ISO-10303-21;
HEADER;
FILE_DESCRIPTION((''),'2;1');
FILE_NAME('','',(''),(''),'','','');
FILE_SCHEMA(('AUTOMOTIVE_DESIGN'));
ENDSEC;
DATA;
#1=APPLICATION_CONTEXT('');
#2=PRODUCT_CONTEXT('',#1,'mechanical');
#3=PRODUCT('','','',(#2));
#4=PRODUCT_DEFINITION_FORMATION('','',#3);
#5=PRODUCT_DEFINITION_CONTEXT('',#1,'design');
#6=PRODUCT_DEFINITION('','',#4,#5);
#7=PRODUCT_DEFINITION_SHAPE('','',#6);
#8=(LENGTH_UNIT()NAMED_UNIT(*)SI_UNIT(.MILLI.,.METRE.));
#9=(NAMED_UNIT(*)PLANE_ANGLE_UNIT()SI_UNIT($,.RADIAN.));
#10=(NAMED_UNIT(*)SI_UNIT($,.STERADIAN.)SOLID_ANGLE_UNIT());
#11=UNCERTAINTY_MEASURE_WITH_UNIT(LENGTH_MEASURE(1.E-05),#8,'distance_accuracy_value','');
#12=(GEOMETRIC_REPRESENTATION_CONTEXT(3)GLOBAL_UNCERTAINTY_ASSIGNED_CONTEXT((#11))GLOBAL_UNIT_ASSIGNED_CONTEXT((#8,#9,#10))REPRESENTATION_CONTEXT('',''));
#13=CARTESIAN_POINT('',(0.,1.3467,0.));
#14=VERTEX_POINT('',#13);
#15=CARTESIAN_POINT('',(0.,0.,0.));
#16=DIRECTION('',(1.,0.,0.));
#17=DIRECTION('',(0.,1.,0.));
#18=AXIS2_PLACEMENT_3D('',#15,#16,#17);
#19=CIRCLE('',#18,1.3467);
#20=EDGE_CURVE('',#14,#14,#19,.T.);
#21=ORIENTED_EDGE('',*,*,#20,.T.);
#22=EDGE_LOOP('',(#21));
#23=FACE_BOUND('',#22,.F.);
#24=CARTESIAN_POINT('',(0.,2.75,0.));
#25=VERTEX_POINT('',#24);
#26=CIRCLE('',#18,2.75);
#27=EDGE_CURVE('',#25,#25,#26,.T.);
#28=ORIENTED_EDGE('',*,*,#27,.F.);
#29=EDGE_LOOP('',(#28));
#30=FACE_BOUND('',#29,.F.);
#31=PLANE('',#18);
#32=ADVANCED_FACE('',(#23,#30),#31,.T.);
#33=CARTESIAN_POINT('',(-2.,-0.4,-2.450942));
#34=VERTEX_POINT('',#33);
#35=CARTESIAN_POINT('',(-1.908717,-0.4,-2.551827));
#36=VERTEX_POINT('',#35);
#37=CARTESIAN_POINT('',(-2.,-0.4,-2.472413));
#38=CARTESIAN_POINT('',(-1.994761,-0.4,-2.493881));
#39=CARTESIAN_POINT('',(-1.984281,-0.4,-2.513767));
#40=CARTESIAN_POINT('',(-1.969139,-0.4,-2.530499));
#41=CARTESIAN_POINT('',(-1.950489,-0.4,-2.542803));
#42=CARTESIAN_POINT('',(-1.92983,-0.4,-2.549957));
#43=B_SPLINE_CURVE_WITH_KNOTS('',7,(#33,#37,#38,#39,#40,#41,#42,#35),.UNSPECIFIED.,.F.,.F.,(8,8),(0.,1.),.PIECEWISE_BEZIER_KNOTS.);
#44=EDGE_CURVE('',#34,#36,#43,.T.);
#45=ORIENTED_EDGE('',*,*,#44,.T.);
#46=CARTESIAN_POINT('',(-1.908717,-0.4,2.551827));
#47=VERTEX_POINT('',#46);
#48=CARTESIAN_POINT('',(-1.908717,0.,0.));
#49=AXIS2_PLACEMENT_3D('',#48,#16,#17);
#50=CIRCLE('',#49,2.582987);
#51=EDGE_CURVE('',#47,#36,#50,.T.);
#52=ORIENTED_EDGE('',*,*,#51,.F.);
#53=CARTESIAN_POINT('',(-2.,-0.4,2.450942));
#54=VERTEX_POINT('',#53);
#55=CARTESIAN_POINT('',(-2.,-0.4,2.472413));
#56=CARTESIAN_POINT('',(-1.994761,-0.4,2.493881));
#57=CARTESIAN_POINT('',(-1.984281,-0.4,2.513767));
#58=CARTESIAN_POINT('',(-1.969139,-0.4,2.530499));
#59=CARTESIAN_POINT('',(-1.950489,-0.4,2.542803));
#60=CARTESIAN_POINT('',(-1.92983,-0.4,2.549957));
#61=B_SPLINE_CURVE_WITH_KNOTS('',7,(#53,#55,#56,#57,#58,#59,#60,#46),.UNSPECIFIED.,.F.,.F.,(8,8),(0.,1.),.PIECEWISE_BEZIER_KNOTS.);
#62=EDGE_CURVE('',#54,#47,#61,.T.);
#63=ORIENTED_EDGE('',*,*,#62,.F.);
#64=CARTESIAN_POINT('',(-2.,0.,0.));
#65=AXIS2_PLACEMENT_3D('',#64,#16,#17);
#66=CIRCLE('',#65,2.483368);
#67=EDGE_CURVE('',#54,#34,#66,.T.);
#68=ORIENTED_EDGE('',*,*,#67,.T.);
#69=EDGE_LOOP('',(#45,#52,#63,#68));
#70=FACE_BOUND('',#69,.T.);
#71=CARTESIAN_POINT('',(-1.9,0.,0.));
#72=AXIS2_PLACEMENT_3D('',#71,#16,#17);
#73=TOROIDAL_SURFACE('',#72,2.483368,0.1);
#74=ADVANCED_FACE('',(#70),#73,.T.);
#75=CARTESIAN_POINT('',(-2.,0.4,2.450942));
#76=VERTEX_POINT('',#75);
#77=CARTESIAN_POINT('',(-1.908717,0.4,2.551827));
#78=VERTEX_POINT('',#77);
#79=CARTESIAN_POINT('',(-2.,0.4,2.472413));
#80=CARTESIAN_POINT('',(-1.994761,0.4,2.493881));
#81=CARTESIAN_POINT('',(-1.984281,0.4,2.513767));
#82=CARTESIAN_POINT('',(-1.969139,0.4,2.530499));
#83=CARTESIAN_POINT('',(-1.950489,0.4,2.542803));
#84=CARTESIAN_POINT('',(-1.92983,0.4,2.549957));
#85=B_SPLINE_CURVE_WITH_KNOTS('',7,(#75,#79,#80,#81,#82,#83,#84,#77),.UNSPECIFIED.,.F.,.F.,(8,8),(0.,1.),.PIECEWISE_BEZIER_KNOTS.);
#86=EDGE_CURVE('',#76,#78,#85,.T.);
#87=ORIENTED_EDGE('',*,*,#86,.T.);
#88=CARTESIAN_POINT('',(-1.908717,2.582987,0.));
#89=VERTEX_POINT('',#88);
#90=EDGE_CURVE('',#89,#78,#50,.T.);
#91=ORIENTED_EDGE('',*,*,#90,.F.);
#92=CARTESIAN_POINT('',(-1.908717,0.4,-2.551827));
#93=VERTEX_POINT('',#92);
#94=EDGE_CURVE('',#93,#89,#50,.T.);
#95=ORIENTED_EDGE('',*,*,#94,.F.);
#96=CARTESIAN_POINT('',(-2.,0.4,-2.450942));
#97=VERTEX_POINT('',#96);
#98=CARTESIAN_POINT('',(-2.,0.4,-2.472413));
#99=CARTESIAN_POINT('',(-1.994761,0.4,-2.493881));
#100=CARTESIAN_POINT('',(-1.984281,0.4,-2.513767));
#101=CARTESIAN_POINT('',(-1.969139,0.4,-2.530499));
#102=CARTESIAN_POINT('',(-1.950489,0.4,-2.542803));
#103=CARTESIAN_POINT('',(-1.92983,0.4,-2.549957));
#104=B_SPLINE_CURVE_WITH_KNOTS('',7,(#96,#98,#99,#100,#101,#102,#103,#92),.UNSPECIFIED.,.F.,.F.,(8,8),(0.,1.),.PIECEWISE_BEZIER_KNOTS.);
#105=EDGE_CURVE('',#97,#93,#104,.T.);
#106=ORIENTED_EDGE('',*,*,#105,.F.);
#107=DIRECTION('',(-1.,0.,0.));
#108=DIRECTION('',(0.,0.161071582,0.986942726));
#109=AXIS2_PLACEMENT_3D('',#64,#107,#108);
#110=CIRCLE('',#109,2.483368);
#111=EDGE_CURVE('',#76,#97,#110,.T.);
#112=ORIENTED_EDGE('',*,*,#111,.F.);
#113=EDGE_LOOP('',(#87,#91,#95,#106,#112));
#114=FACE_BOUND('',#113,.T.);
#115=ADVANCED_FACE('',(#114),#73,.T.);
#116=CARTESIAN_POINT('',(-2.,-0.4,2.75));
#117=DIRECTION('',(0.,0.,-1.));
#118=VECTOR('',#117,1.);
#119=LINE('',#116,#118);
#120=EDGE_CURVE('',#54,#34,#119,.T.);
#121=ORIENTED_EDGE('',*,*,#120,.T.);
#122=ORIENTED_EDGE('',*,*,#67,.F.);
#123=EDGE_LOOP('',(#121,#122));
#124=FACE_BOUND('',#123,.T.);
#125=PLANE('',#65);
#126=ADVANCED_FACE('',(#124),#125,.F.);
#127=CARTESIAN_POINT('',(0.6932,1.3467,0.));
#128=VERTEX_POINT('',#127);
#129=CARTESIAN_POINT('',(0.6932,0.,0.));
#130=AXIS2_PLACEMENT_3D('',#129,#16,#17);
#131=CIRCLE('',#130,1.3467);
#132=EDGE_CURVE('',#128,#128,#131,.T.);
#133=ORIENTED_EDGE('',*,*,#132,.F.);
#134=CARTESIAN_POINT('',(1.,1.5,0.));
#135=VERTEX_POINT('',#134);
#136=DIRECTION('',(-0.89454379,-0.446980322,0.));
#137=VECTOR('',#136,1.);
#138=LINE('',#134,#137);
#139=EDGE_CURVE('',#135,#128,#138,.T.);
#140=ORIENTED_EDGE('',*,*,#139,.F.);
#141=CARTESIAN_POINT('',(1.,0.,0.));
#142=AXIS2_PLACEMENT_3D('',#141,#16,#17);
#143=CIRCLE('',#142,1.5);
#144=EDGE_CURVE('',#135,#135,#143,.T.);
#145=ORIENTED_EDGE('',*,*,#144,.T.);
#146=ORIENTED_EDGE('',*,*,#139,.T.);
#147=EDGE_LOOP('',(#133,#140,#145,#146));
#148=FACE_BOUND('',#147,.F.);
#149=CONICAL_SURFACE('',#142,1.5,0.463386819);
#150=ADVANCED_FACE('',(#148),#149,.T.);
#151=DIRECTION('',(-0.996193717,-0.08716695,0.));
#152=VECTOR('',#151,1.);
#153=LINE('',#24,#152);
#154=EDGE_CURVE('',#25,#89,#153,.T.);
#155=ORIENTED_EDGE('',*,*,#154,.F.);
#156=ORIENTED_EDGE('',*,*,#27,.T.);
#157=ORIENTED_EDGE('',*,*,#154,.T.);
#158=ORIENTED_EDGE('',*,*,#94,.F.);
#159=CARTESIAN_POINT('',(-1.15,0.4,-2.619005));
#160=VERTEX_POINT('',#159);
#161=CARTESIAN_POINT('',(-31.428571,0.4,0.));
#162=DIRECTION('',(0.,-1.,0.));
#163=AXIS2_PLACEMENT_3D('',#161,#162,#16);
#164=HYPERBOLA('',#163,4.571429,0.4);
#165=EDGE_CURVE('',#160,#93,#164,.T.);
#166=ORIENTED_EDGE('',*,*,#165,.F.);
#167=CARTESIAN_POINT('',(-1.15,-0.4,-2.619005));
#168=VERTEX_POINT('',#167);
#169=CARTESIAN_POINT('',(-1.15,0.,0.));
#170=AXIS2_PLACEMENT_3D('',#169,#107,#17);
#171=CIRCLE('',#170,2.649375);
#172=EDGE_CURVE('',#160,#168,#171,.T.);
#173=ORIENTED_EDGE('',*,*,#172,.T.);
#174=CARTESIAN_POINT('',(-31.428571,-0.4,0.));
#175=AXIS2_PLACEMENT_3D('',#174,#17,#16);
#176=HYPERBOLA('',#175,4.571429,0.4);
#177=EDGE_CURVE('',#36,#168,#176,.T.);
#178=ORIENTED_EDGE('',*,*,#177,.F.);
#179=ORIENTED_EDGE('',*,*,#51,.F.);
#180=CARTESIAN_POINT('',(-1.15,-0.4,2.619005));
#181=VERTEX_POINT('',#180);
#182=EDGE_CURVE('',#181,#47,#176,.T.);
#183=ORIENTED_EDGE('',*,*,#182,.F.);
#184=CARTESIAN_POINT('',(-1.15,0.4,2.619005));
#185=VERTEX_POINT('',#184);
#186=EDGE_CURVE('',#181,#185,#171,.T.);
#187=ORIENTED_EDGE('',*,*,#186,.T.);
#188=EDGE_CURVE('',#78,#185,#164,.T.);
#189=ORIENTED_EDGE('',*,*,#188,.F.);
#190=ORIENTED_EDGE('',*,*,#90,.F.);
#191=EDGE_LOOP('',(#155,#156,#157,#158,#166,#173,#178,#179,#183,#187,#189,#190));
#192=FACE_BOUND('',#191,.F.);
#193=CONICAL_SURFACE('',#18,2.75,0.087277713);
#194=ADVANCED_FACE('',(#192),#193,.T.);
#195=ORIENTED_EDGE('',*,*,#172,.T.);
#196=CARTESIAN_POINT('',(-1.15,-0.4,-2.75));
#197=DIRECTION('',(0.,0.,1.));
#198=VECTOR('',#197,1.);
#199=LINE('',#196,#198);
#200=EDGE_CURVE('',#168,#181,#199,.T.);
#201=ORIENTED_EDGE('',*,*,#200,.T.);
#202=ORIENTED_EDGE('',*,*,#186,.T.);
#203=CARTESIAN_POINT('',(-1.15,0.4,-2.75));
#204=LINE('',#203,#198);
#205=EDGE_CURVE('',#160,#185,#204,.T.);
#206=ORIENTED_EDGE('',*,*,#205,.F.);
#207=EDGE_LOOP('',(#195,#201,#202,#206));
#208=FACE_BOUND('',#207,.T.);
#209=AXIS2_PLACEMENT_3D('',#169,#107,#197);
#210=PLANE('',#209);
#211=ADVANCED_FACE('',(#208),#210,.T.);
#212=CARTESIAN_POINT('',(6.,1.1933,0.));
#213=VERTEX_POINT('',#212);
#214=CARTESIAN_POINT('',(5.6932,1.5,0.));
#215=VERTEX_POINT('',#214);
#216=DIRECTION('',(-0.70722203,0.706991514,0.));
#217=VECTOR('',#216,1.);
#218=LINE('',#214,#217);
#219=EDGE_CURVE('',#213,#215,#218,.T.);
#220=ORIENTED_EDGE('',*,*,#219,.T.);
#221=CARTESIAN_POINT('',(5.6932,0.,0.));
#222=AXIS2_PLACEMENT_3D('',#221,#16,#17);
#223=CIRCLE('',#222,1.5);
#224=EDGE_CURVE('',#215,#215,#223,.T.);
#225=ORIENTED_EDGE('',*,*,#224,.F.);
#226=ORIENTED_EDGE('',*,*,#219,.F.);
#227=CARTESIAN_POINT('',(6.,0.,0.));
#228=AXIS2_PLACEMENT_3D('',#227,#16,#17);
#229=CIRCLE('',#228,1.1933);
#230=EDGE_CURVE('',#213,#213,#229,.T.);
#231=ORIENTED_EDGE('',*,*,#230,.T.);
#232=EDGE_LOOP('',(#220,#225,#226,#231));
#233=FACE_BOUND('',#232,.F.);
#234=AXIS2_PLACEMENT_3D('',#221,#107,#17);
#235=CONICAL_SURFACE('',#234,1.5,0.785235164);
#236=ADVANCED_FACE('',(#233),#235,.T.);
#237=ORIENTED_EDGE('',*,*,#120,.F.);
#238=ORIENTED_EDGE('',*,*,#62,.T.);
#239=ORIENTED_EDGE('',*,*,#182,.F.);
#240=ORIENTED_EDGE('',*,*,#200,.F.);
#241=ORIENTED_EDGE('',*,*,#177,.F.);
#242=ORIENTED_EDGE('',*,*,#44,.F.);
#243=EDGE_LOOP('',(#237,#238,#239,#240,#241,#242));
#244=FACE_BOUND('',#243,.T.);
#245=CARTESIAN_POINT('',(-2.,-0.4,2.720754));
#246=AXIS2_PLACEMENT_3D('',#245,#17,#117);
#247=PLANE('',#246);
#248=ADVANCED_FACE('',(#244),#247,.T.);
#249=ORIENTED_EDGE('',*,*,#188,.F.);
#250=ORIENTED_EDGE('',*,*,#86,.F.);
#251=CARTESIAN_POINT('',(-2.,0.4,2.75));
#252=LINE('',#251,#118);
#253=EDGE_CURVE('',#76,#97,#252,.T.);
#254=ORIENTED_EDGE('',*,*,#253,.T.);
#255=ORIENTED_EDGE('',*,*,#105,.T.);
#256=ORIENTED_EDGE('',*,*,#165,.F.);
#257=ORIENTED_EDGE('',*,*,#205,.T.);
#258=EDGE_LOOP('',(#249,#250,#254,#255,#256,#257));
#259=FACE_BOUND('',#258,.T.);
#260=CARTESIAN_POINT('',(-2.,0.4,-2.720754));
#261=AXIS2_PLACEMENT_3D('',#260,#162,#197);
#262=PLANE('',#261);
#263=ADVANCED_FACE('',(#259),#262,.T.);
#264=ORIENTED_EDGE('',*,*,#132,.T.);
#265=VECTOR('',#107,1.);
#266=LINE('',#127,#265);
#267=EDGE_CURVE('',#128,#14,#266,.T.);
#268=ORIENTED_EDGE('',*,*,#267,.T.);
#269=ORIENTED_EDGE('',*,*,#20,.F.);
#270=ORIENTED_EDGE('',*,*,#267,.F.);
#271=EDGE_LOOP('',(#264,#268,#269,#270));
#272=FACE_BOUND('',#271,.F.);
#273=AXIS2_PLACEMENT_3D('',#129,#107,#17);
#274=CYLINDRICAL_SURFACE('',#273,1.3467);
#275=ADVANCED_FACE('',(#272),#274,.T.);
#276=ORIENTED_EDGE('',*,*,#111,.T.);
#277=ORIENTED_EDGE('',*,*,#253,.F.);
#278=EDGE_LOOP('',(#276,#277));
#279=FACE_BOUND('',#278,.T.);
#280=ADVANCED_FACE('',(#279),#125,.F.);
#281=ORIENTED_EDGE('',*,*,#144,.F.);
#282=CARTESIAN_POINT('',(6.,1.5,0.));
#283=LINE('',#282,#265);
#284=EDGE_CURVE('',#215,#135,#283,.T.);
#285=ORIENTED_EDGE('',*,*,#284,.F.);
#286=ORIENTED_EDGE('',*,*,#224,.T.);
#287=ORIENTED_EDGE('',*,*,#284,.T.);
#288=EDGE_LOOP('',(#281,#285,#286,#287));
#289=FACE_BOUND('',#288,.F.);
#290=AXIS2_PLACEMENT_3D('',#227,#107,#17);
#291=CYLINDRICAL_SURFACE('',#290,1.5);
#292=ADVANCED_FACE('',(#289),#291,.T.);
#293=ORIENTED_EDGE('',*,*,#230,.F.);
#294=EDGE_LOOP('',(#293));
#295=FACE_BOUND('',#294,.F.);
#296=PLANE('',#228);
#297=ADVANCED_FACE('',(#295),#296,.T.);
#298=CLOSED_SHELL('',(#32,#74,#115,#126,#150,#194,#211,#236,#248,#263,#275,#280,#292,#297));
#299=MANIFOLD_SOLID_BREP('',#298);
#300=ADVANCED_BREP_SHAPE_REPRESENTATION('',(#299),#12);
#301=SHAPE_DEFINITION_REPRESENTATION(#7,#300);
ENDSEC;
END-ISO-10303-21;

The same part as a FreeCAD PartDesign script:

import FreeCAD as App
import Part
import Sketcher
from FreeCAD import Vector
Q = App.Units.Quantity


def edges_at(feature, points):
    """Names of the edges that pass closest to the given points."""
    edges = feature.Shape.Edges
    near = lambda p: min(range(len(edges)), key=lambda i: edges[i].distToShape(Part.Vertex(*p))[0])
    return sorted({f"Edge{near(p) + 1}" for p in points})

doc = App.newDocument("Part")
body = doc.addObject("PartDesign::Body", "Body")

# Sketch on XY plane
sketch1 = doc.addObject("Sketcher::SketchObject", "Sketch")
body.addObject(sketch1)
sketch1.AttachmentSupport = (doc.XY_Plane, [""])
sketch1.MapMode = "FlatFace"
sketch1.addGeometry([
    Part.LineSegment(Vector(-2, 2.58, 0), Vector(-2, 0, 0)),  # 0
    Part.LineSegment(Vector(-2, 0, 0), Vector(6, 0, 0)),  # 1
    Part.LineSegment(Vector(6, 0, 0), Vector(6, 1.5, 0)),  # 2
    Part.LineSegment(Vector(6, 1.5, 0), Vector(1, 1.5, 0)),  # 3
    Part.LineSegment(Vector(1, 1.5, 0), Vector(0.69, 1.35, 0)),  # 4
    Part.LineSegment(Vector(0.69, 1.35, 0), Vector(0, 1.35, 0)),  # 5
    Part.LineSegment(Vector(0, 1.35, 0), Vector(0, 2.75, 0)),  # 6
    Part.LineSegment(Vector(0, 2.75, 0), Vector(-2, 2.58, 0)),  # 7
], False)
sketch1.addConstraint([
    Sketcher.Constraint("Coincident", 0, 2, 1, 1),
    Sketcher.Constraint("Coincident", 1, 2, 2, 1),
    Sketcher.Constraint("Coincident", 2, 2, 3, 1),
    Sketcher.Constraint("Coincident", 3, 2, 4, 1),
    Sketcher.Constraint("Coincident", 4, 2, 5, 1),
    Sketcher.Constraint("Coincident", 5, 2, 6, 1),
    Sketcher.Constraint("Coincident", 6, 2, 7, 1),
    Sketcher.Constraint("Coincident", 7, 2, 0, 1),
    Sketcher.Constraint("Vertical", 0),
    Sketcher.Constraint("Horizontal", 1),
    Sketcher.Constraint("Vertical", 2),
    Sketcher.Constraint("Horizontal", 3),
    Sketcher.Constraint("Horizontal", 5),
    Sketcher.Constraint("Vertical", 6),
    Sketcher.Constraint("PointOnObject", 0, 2, -1),
    Sketcher.Constraint("PointOnObject", 5, 2, -2),
    Sketcher.Constraint("DistanceX", 3, 2, 3, 1, Q("5 mm")),
    Sketcher.Constraint("DistanceX", 0, 2, -1, 1, Q("2 mm")),
    Sketcher.Constraint("DistanceX", -1, 1, 1, 2, Q("6 mm")),
    Sketcher.Constraint("Angle", 7, Q("-174.9994 deg")),
    Sketcher.Constraint("DistanceY", 2, 1, 2, 2, Q("1.5 mm")),
    Sketcher.Constraint("Angle", 4, Q("-153.45 deg")),
    Sketcher.Constraint("DistanceX", 4, 2, 3, 2, Q("0.3068 mm")),
    Sketcher.Constraint("DistanceY", 0, 2, 0, 1, Q("2.575 mm")),
])
revolution = doc.addObject("PartDesign::Revolution", "Revolution")
body.addObject(revolution)
revolution.Profile = sketch1
revolution.ReferenceAxis = (sketch1, ["H_Axis"])
revolution.Angle = 360
doc.recompute()

fillet = doc.addObject("PartDesign::Fillet", "Fillet")
body.addObject(fillet)
fillet.Base = (revolution, edges_at(revolution, [(-2, -2.575, 0)]))
fillet.Radius = 0.1

# Sketch on YZ plane
sketch2 = doc.addObject("Sketcher::SketchObject", "Sketch001")
body.addObject(sketch2)
sketch2.AttachmentSupport = (doc.YZ_Plane, [""])
sketch2.MapMode = "FlatFace"
sketch2.AttachmentOffset = App.Placement(Vector(0, 0, -2), App.Rotation())
sketch2.addGeometry([
    Part.LineSegment(Vector(-0.4, 2.8, 0), Vector(0.4, 2.8, 0)),
    Part.LineSegment(Vector(0.4, 2.8, 0), Vector(0.4, -2.8, 0)),
    Part.LineSegment(Vector(0.4, -2.8, 0), Vector(-0.4, -2.8, 0)),
    Part.LineSegment(Vector(-0.4, -2.8, 0), Vector(-0.4, 2.8, 0)),
], False)
sketch2.addConstraint([
    Sketcher.Constraint("Coincident", 0, 2, 1, 1),
    Sketcher.Constraint("Coincident", 1, 2, 2, 1),
    Sketcher.Constraint("Coincident", 2, 2, 3, 1),
    Sketcher.Constraint("Coincident", 3, 2, 0, 1),
    Sketcher.Constraint("Horizontal", 0),
    Sketcher.Constraint("Vertical", 1),
    Sketcher.Constraint("Horizontal", 2),
    Sketcher.Constraint("Vertical", 3),
    Sketcher.Constraint("Symmetric", 0, 2, 2, 2, -1, 1),
    Sketcher.Constraint("DistanceX", 0, 1, 0, 2, Q("0.8 mm")),
    Sketcher.Constraint("DistanceY", 1, 2, 1, 1, Q("5.5 mm")),
])
pocket1 = doc.addObject("PartDesign::Pocket", "Pocket")
body.addObject(pocket1)
pocket1.Profile = sketch2
pocket1.Length = 0.85
pocket1.Reversed = True
doc.recompute()

chamfer = doc.addObject("PartDesign::Chamfer", "Chamfer")
body.addObject(chamfer)
chamfer.Base = (pocket1, edges_at(pocket1, [(6, -1.5, 0)]))
chamfer.ChamferType = "Two distances"
chamfer.Size = 0.3067
chamfer.Size2 = 0.3068

doc.recompute()
